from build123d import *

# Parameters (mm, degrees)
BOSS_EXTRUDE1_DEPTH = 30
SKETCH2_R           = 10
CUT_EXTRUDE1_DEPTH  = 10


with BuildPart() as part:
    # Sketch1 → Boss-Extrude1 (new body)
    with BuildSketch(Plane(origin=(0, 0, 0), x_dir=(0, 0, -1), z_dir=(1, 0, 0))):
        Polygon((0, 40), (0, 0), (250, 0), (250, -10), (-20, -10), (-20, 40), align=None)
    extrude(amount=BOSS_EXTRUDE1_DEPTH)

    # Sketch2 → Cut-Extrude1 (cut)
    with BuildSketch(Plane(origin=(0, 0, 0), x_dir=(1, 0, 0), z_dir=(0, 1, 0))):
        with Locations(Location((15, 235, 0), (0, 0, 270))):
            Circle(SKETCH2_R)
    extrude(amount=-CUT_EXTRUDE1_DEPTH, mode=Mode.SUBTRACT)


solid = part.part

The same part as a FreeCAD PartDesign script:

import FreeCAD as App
import Part
import Sketcher


def add_polygon(sketch, points):
    """Adds a closed chain of lines whose ends are joined by coincident constraints."""
    first, n = sketch.GeometryCount, len(points)
    for a, b in zip(points, points[1:] + points[:1]):
        sketch.addGeometry(Part.LineSegment(App.Vector(*a, 0), App.Vector(*b, 0)), False)
    for i in range(n):
        sketch.addConstraint(Sketcher.Constraint("Coincident", first + i, 2, first + (i + 1) % n, 1))

doc = App.newDocument("Part")
body = doc.addObject("PartDesign::Body", "Body")

# Sketch on YZ plane
sketch1 = body.newObject("Sketcher::SketchObject", "Sketch")
sketch1.AttachmentSupport = (doc.getObject("YZ_Plane"), [""])
sketch1.MapMode = "FlatFace"
add_polygon(sketch1, [(0, 0), (40, 0), (40, 20), (-10, 20), (-10, -250), (0, -250)])  # lines 0-5
sketch1.addConstraint(Sketcher.Constraint("Horizontal", 0))
sketch1.addConstraint(Sketcher.Constraint("Vertical", 1))
sketch1.addConstraint(Sketcher.Constraint("Horizontal", 2))
sketch1.addConstraint(Sketcher.Constraint("Vertical", 3))
sketch1.addConstraint(Sketcher.Constraint("Horizontal", 4))
sketch1.addConstraint(Sketcher.Constraint("Vertical", 5))
sketch1.addConstraint(Sketcher.Constraint("Coincident", 5, 2, -1, 1))
sketch1.addConstraint(Sketcher.Constraint("DistanceX", 0, 1, 0, 2, 40.0))
sketch1.addConstraint(Sketcher.Constraint("DistanceX", 2, 2, 2, 1, 50.0))
sketch1.addConstraint(Sketcher.Constraint("DistanceY", 1, 1, 1, 2, 20.0))
sketch1.addConstraint(Sketcher.Constraint("DistanceY", 3, 2, 3, 1, 270.0))
pad1 = body.newObject("PartDesign::Pad", "Pad")
pad1.Profile = sketch1
pad1.Length = 30

# Sketch on XZ plane
sketch2 = body.newObject("Sketcher::SketchObject", "Sketch001")
sketch2.AttachmentSupport = (doc.getObject("XZ_Plane"), [""])
sketch2.MapMode = "FlatFace"
sketch2.addGeometry(Part.Circle(App.Vector(15, -235, 0), App.Vector(0, 0, 1), 10), False)
sketch2.addConstraint(Sketcher.Constraint("Diameter", 0, 20.0))
sketch2.addConstraint(Sketcher.Constraint("DistanceX", -1, 1, 0, 3, 15.0))
sketch2.addConstraint(Sketcher.Constraint("DistanceY", 0, 3, -1, 1, 235.0))
pocket1 = body.newObject("PartDesign::Pocket", "Pocket")
pocket1.Profile = sketch2
pocket1.Length = 10
pocket1.Reversed = True

doc.recompute()
